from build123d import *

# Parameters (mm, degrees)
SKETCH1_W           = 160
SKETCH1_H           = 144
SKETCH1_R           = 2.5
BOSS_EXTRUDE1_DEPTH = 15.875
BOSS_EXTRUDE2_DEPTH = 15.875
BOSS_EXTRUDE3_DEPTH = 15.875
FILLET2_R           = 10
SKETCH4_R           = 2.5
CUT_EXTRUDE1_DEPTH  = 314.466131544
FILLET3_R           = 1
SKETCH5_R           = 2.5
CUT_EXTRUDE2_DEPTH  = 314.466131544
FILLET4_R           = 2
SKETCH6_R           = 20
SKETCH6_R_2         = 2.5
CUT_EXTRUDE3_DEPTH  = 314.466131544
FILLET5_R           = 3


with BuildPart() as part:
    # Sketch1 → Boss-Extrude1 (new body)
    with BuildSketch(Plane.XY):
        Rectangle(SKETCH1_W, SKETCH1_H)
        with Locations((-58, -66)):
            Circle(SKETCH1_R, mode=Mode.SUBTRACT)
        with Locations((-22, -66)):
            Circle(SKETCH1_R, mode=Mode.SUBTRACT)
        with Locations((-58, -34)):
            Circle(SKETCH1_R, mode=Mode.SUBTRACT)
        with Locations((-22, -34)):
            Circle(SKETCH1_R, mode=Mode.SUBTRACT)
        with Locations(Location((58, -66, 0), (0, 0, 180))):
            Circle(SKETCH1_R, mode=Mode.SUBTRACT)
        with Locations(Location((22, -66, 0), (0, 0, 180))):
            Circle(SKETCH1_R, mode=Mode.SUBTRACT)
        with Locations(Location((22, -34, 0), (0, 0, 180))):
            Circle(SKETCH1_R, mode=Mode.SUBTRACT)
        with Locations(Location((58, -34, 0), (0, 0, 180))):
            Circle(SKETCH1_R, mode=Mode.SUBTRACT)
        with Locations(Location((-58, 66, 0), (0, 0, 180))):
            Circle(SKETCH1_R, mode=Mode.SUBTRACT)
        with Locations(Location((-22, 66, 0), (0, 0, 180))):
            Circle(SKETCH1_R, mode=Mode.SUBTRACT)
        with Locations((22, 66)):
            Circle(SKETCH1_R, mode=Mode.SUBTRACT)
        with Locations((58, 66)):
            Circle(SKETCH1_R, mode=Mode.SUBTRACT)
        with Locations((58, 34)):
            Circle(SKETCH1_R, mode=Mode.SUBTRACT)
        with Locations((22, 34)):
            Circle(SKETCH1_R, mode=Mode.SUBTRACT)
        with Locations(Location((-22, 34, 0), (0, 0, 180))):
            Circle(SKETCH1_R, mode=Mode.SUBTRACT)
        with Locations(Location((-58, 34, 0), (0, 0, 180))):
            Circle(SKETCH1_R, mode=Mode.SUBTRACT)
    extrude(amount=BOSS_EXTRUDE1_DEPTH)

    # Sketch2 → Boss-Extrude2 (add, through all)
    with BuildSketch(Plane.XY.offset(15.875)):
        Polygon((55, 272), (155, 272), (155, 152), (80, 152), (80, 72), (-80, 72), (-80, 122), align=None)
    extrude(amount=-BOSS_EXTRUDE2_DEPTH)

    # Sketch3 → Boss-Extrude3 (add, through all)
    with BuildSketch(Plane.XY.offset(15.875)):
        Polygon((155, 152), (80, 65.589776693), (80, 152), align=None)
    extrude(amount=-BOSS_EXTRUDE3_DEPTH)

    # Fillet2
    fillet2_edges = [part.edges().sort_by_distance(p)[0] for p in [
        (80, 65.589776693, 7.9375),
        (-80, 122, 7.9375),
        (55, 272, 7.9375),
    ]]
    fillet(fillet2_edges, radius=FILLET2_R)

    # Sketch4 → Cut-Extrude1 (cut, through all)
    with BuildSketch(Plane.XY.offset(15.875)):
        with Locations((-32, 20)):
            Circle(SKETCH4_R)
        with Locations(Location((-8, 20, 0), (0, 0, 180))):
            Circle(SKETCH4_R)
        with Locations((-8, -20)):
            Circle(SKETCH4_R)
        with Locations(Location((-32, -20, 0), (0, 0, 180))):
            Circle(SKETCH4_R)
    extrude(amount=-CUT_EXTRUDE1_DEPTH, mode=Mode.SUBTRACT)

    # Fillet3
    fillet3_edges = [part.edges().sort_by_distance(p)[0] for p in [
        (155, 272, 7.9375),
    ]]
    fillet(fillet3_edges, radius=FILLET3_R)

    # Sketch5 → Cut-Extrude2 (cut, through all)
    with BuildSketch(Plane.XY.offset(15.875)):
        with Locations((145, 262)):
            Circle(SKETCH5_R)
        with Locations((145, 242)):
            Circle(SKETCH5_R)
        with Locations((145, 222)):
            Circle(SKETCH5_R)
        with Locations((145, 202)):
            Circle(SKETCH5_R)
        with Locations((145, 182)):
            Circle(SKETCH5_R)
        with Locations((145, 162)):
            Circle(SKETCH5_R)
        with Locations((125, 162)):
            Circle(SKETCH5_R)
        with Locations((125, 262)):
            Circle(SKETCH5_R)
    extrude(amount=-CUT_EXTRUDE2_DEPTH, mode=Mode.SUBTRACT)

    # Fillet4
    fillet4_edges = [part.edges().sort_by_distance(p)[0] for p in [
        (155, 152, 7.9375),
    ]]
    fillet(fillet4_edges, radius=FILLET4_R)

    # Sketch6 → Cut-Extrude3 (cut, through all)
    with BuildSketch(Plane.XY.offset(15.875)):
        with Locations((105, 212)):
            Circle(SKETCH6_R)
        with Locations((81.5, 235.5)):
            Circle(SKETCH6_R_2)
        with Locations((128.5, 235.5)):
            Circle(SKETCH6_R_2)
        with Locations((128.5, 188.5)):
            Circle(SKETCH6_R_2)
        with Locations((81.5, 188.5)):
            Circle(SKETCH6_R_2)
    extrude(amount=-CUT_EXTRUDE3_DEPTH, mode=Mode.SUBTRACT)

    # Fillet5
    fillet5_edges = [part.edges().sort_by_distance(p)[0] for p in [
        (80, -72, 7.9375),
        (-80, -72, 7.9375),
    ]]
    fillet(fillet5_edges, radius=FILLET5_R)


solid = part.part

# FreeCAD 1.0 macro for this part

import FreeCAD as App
import Part
import Sketcher
from FreeCAD import Vector
Q = App.Units.Quantity


def edges_at(feature, points):
    """Names of the edges that pass closest to the given points."""
    edges = feature.Shape.Edges
    near = lambda p: min(range(len(edges)), key=lambda i: edges[i].distToShape(Part.Vertex(*p))[0])
    return sorted({f"Edge{near(p) + 1}" for p in points})


def add_polygon(sketch, points):
    """Adds a closed chain of lines whose ends are joined by coincident constraints."""
    first, n = sketch.GeometryCount, len(points)
    for a, b in zip(points, points[1:] + points[:1]):
        sketch.addGeometry(Part.LineSegment(App.Vector(*a, 0), App.Vector(*b, 0)), False)
    for i in range(n):
        sketch.addConstraint(Sketcher.Constraint("Coincident", first + i, 2, first + (i + 1) % n, 1))

doc = App.newDocument("Part")
params = doc.addObject("Spreadsheet::Sheet", "Params")
for row, (alias, value) in enumerate([
    ("sketch1_diameter", "5 mm"),
    ("sketch1_width", "160 mm"),
    ("sketch1_height", "144 mm"),
    ("pad1_length", "15.875 mm"),
    ("sketch2_width", "100 mm"),
    ("sketch2_width2", "160 mm"),
    ("sketch2_width3", "75 mm"),
    ("sketch2_height", "50 mm"),
    ("sketch2_height2", "80 mm"),
    ("pad2_length", "15.875 mm"),
    ("sketch3_width", "75 mm"),
    ("pad3_length", "15.875 mm"),
    ("fillet_radius", "10 mm"),
    ("sketch4_diameter", "5 mm"),
    ("fillet2_radius", "1 mm"),
    ("sketch5_diameter", "5 mm"),
    ("fillet3_radius", "2 mm"),
    ("sketch6_diameter", "40 mm"),
    ("sketch6_diameter2", "5 mm"),
    ("fillet4_radius", "3 mm"),
], start=1):
    params.set(f"A{row}", alias)
    params.set(f"B{row}", "=" + value)
    params.setAlias(f"B{row}", alias)

body = doc.addObject("PartDesign::Body", "Body")

# Sketch on XY plane
sketch1 = doc.addObject("Sketcher::SketchObject", "Sketch")
body.addObject(sketch1)
sketch1.AttachmentSupport = (doc.XY_Plane, [""])
sketch1.MapMode = "FlatFace"
add_polygon(sketch1, [(-80, 72), (-80, -72), (80, -72), (80, 72)])  # lines 0-3
sketch1.addGeometry(Part.Circle(Vector(-58, -66, 0), Vector(0, 0, 1), 2.5), False)  # 4
sketch1.addGeometry(Part.Circle(Vector(-22, -66, 0), Vector(0, 0, 1), 2.5), False)  # 5
sketch1.addGeometry(Part.Circle(Vector(-58, -34, 0), Vector(0, 0, 1), 2.5), False)  # 6
sketch1.addGeometry(Part.Circle(Vector(-22, -34, 0), Vector(0, 0, 1), 2.5), False)  # 7
sketch1.addGeometry(Part.Circle(Vector(22, -66, 0), Vector(0, 0, 1), 2.5), False)  # 8
sketch1.addGeometry(Part.Circle(Vector(58, -66, 0), Vector(0, 0, 1), 2.5), False)  # 9
sketch1.addGeometry(Part.Circle(Vector(22, -34, 0), Vector(0, 0, 1), 2.5), False)  # 10
sketch1.addGeometry(Part.Circle(Vector(58, -34, 0), Vector(0, 0, 1), 2.5), False)  # 11
sketch1.addGeometry(Part.Circle(Vector(-58, 34, 0), Vector(0, 0, 1), 2.5), False)  # 12
sketch1.addGeometry(Part.Circle(Vector(-22, 34, 0), Vector(0, 0, 1), 2.5), False)  # 13
sketch1.addGeometry(Part.Circle(Vector(-58, 66, 0), Vector(0, 0, 1), 2.5), False)  # 14
sketch1.addGeometry(Part.Circle(Vector(-22, 66, 0), Vector(0, 0, 1), 2.5), False)  # 15
sketch1.addGeometry(Part.Circle(Vector(22, 34, 0), Vector(0, 0, 1), 2.5), False)  # 16
sketch1.addGeometry(Part.Circle(Vector(58, 34, 0), Vector(0, 0, 1), 2.5), False)  # 17
sketch1.addGeometry(Part.Circle(Vector(22, 66, 0), Vector(0, 0, 1), 2.5), False)  # 18
sketch1.addGeometry(Part.Circle(Vector(58, 66, 0), Vector(0, 0, 1), 2.5), False)  # 19
sketch1.addConstraint([
    Sketcher.Constraint("Vertical", 0),
    Sketcher.Constraint("Horizontal", 1),
    Sketcher.Constraint("Vertical", 2),
    Sketcher.Constraint("Horizontal", 3),
    Sketcher.Constraint("Equal", 4, 5),
    Sketcher.Constraint("Equal", 5, 6),
    Sketcher.Constraint("Equal", 6, 7),
    Sketcher.Constraint("Equal", 7, 8),
    Sketcher.Constraint("Equal", 8, 9),
    Sketcher.Constraint("Equal", 9, 10),
    Sketcher.Constraint("Equal", 10, 11),
    Sketcher.Constraint("Equal", 11, 12),
    Sketcher.Constraint("Equal", 12, 13),
    Sketcher.Constraint("Equal", 13, 14),
    Sketcher.Constraint("Equal", 14, 15),
    Sketcher.Constraint("Equal", 15, 16),
    Sketcher.Constraint("Equal", 16, 17),
    Sketcher.Constraint("Equal", 17, 18),
    Sketcher.Constraint("Equal", 18, 19),
    Sketcher.Constraint("Symmetric", 11, 3, 12, 3, -1, 1),
    Sketcher.Constraint("Symmetric", 10, 3, 13, 3, -1, 1),
    Sketcher.Constraint("Symmetric", 9, 3, 14, 3, -1, 1),
    Sketcher.Constraint("Symmetric", 8, 3, 15, 3, -1, 1),
    Sketcher.Constraint("Symmetric", 7, 3, 16, 3, -1, 1),
    Sketcher.Constraint("Symmetric", 6, 3, 17, 3, -1, 1),
    Sketcher.Constraint("Symmetric", 5, 3, 18, 3, -1, 1),
    Sketcher.Constraint("Symmetric", 4, 3, 19, 3, -1, 1),
    Sketcher.Constraint("Symmetric", 0, 2, 2, 2, -1, 1),
    Sketcher.Constraint("Symmetric", 5, 3, 8, 3, -2),
    Sketcher.Constraint("Symmetric", 4, 3, 9, 3, -2),
    Sketcher.Constraint("Symmetric", 7, 3, 10, 3, -2),
    Sketcher.Constraint("Symmetric", 6, 3, 11, 3, -2),
    Sketcher.Constraint("Horizontal", 4, 3, 5, 3),
    Sketcher.Constraint("Horizontal", 6, 3, 7, 3),
    Sketcher.Constraint("Vertical", 4, 3, 6, 3),
    Sketcher.Constraint("Vertical", 5, 3, 7, 3),
    Sketcher.Constraint("Diameter", 4, Q("5 mm")),
    Sketcher.Constraint("DistanceX", 1, 1, 1, 2, Q("160 mm")),
    Sketcher.Constraint("DistanceY", 0, 2, 0, 1, Q("144 mm")),
    Sketcher.Constraint("DistanceX", 4, 3, -1, 1, Q("58 mm")),
    Sketcher.Constraint("DistanceY", 4, 3, -1, 1, Q("66 mm")),
    Sketcher.Constraint("DistanceX", 5, 3, -1, 1, Q("22 mm")),
    Sketcher.Constraint("DistanceY", 6, 3, -1, 1, Q("34 mm")),
])
sketch1.setExpression("Constraints[40]", "Params.sketch1_diameter")
sketch1.setExpression("Constraints[41]", "Params.sketch1_width")
sketch1.setExpression("Constraints[42]", "Params.sketch1_height")
pad1 = doc.addObject("PartDesign::Pad", "Pad")
body.addObject(pad1)
pad1.Profile = sketch1
pad1.setExpression("Length", "Params.pad1_length")

# Sketch on XY plane
sketch2 = doc.addObject("Sketcher::SketchObject", "Sketch001")
body.addObject(sketch2)
sketch2.AttachmentSupport = (doc.XY_Plane, [""])
sketch2.MapMode = "FlatFace"
sketch2.AttachmentOffset = App.Placement(Vector(0, 0, 15.875), App.Rotation())
add_polygon(sketch2, [(155, 272), (55, 272), (-80, 122), (-80, 72), (80, 72), (80, 152), (155, 152)])  # lines 0-6
sketch2.addConstraint([
    Sketcher.Constraint("Horizontal", 0),
    Sketcher.Constraint("Vertical", 2),
    Sketcher.Constraint("Horizontal", 3),
    Sketcher.Constraint("Vertical", 4),
    Sketcher.Constraint("Horizontal", 5),
    Sketcher.Constraint("Vertical", 6),
    Sketcher.Constraint("DistanceX", 0, 2, 0, 1, Q("100 mm")),
    Sketcher.Constraint("DistanceX", 3, 1, 3, 2, Q("160 mm")),
    Sketcher.Constraint("DistanceX", 5, 1, 5, 2, Q("75 mm")),
    Sketcher.Constraint("DistanceY", 2, 2, 2, 1, Q("50 mm")),
    Sketcher.Constraint("DistanceY", 4, 1, 4, 2, Q("80 mm")),
    Sketcher.Constraint("DistanceY", 6, 1, 6, 2, Q("120 mm")),
    Sketcher.Constraint("DistanceX", -1, 1, 0, 2, Q("55 mm")),
    Sketcher.Constraint("DistanceY", -1, 1, 0, 2, Q("272 mm")),
])
sketch2.setExpression("Constraints[13]", "Params.sketch2_width")
sketch2.setExpression("Constraints[14]", "Params.sketch2_width2")
sketch2.setExpression("Constraints[15]", "Params.sketch2_width3")
sketch2.setExpression("Constraints[16]", "Params.sketch2_height")
sketch2.setExpression("Constraints[17]", "Params.sketch2_height2")
pad2 = doc.addObject("PartDesign::Pad", "Pad001")
body.addObject(pad2)
pad2.Profile = sketch2
pad2.setExpression("Length", "Params.pad2_length")
pad2.Reversed = True

# Sketch on XY plane
sketch3 = doc.addObject("Sketcher::SketchObject", "Sketch002")
body.addObject(sketch3)
sketch3.AttachmentSupport = (doc.XY_Plane, [""])
sketch3.MapMode = "FlatFace"
sketch3.AttachmentOffset = App.Placement(Vector(0, 0, 15.875), App.Rotation())
add_polygon(sketch3, [(80, 65.589777), (155, 152), (80, 152)])  # lines 0-2
sketch3.addConstraint([
    Sketcher.Constraint("Horizontal", 1),
    Sketcher.Constraint("Vertical", 2),
    Sketcher.Constraint("DistanceX", 1, 2, 1, 1, Q("75 mm")),
    Sketcher.Constraint("DistanceX", -1, 1, 0, 2, Q("155 mm")),
    Sketcher.Constraint("DistanceY", -1, 1, 0, 2, Q("152 mm")),
    Sketcher.Constraint("DistanceY", 2, 2, 2, 1, Q("86.410223 mm")),
])
sketch3.setExpression("Constraints[5]", "Params.sketch3_width")
pad3 = doc.addObject("PartDesign::Pad", "Pad002")
body.addObject(pad3)
pad3.Profile = sketch3
pad3.setExpression("Length", "Params.pad3_length")
pad3.Reversed = True
doc.recompute()

fillet = doc.addObject("PartDesign::Fillet", "Fillet")
body.addObject(fillet)
fillet.Base = (pad3, edges_at(pad3, [(80, 65.59, 7.938), (-80, 122, 7.938), (55, 272, 7.938)]))
fillet.setExpression("Radius", "Params.fillet_radius")

# Sketch on XY plane
sketch4 = doc.addObject("Sketcher::SketchObject", "Sketch003")
body.addObject(sketch4)
sketch4.AttachmentSupport = (doc.XY_Plane, [""])
sketch4.MapMode = "FlatFace"
sketch4.AttachmentOffset = App.Placement(Vector(0, 0, 15.875), App.Rotation())
sketch4.addGeometry([
    Part.Circle(Vector(-32, 20, 0), Vector(0, 0, 1), 2.5),
    Part.Circle(Vector(-8, 20, 0), Vector(0, 0, 1), 2.5),
    Part.Circle(Vector(-8, -20, 0), Vector(0, 0, 1), 2.5),
    Part.Circle(Vector(-32, -20, 0), Vector(0, 0, 1), 2.5),
], False)
sketch4.addConstraint([
    Sketcher.Constraint("Equal", 0, 1),
    Sketcher.Constraint("Equal", 1, 2),
    Sketcher.Constraint("Equal", 2, 3),
    Sketcher.Constraint("Symmetric", 1, 3, 2, 3, -1),
    Sketcher.Constraint("Symmetric", 0, 3, 3, 3, -1),
    Sketcher.Constraint("Horizontal", 0, 3, 1, 3),
    Sketcher.Constraint("Diameter", 0, Q("5 mm")),
    Sketcher.Constraint("DistanceX", 0, 3, -1, 1, Q("32 mm")),
    Sketcher.Constraint("DistanceY", -1, 1, 0, 3, Q("20 mm")),
    Sketcher.Constraint("DistanceX", 1, 3, -1, 1, Q("8 mm")),
])
sketch4.setExpression("Constraints[6]", "Params.sketch4_diameter")
pocket1 = doc.addObject("PartDesign::Pocket", "Pocket")
body.addObject(pocket1)
pocket1.Profile = sketch4
pocket1.Type = "ThroughAll"
doc.recompute()

fillet2 = doc.addObject("PartDesign::Fillet", "Fillet001")
body.addObject(fillet2)
fillet2.Base = (pocket1, edges_at(pocket1, [(155, 272, 7.938)]))
fillet2.setExpression("Radius", "Params.fillet2_radius")

# Sketch on XY plane
sketch5 = doc.addObject("Sketcher::SketchObject", "Sketch004")
body.addObject(sketch5)
sketch5.AttachmentSupport = (doc.XY_Plane, [""])
sketch5.MapMode = "FlatFace"
sketch5.AttachmentOffset = App.Placement(Vector(0, 0, 15.875), App.Rotation())
sketch5.addGeometry([
    Part.Circle(Vector(145, 262, 0), Vector(0, 0, 1), 2.5),  # 0
    Part.Circle(Vector(145, 242, 0), Vector(0, 0, 1), 2.5),  # 1
    Part.Circle(Vector(145, 222, 0), Vector(0, 0, 1), 2.5),  # 2
    Part.Circle(Vector(145, 202, 0), Vector(0, 0, 1), 2.5),  # 3
    Part.Circle(Vector(145, 182, 0), Vector(0, 0, 1), 2.5),  # 4
    Part.Circle(Vector(145, 162, 0), Vector(0, 0, 1), 2.5),  # 5
    Part.Circle(Vector(125, 162, 0), Vector(0, 0, 1), 2.5),  # 6
    Part.Circle(Vector(125, 262, 0), Vector(0, 0, 1), 2.5),  # 7
], False)
sketch5.addConstraint([
    Sketcher.Constraint("Equal", 0, 1),
    Sketcher.Constraint("Equal", 1, 2),
    Sketcher.Constraint("Equal", 2, 3),
    Sketcher.Constraint("Equal", 3, 4),
    Sketcher.Constraint("Equal", 4, 5),
    Sketcher.Constraint("Equal", 5, 6),
    Sketcher.Constraint("Equal", 6, 7),
    Sketcher.Constraint("Horizontal", 5, 3, 6, 3),
    Sketcher.Constraint("Horizontal", 0, 3, 7, 3),
    Sketcher.Constraint("Vertical", 0, 3, 1, 3),
    Sketcher.Constraint("Vertical", 1, 3, 2, 3),
    Sketcher.Constraint("Vertical", 2, 3, 3, 3),
    Sketcher.Constraint("Vertical", 3, 3, 4, 3),
    Sketcher.Constraint("Vertical", 4, 3, 5, 3),
    Sketcher.Constraint("Vertical", 6, 3, 7, 3),
    Sketcher.Constraint("Diameter", 0, Q("5 mm")),
    Sketcher.Constraint("DistanceX", -1, 1, 0, 3, Q("145 mm")),
    Sketcher.Constraint("DistanceY", -1, 1, 0, 3, Q("262 mm")),
    Sketcher.Constraint("DistanceY", -1, 1, 1, 3, Q("242 mm")),
    Sketcher.Constraint("DistanceY", -1, 1, 2, 3, Q("222 mm")),
    Sketcher.Constraint("DistanceY", -1, 1, 3, 3, Q("202 mm")),
    Sketcher.Constraint("DistanceY", -1, 1, 4, 3, Q("182 mm")),
    Sketcher.Constraint("DistanceY", -1, 1, 5, 3, Q("162 mm")),
    Sketcher.Constraint("DistanceX", -1, 1, 6, 3, Q("125 mm")),
])
sketch5.setExpression("Constraints[15]", "Params.sketch5_diameter")
pocket2 = doc.addObject("PartDesign::Pocket", "Pocket001")
body.addObject(pocket2)
pocket2.Profile = sketch5
pocket2.Type = "ThroughAll"
doc.recompute()

fillet3 = doc.addObject("PartDesign::Fillet", "Fillet002")
body.addObject(fillet3)
fillet3.Base = (pocket2, edges_at(pocket2, [(155, 152, 7.938)]))
fillet3.setExpression("Radius", "Params.fillet3_radius")

# Sketch on XY plane
sketch6 = doc.addObject("Sketcher::SketchObject", "Sketch005")
body.addObject(sketch6)
sketch6.AttachmentSupport = (doc.XY_Plane, [""])
sketch6.MapMode = "FlatFace"
sketch6.AttachmentOffset = App.Placement(Vector(0, 0, 15.875), App.Rotation())
sketch6.addGeometry([
    Part.Circle(Vector(105, 212, 0), Vector(0, 0, 1), 20),  # 0
    Part.Circle(Vector(81.5, 235.5, 0), Vector(0, 0, 1), 2.5),  # 1
    Part.Circle(Vector(128.5, 235.5, 0), Vector(0, 0, 1), 2.5),  # 2
    Part.Circle(Vector(128.5, 188.5, 0), Vector(0, 0, 1), 2.5),  # 3
    Part.Circle(Vector(81.5, 188.5, 0), Vector(0, 0, 1), 2.5),  # 4
], False)
sketch6.addConstraint([
    Sketcher.Constraint("Equal", 1, 2),
    Sketcher.Constraint("Equal", 2, 3),
    Sketcher.Constraint("Equal", 3, 4),
    Sketcher.Constraint("Horizontal", 1, 3, 2, 3),
    Sketcher.Constraint("Horizontal", 3, 3, 4, 3),
    Sketcher.Constraint("Vertical", 2, 3, 3, 3),
    Sketcher.Constraint("Vertical", 1, 3, 4, 3),
    Sketcher.Constraint("Diameter", 0, Q("40 mm")),
    Sketcher.Constraint("Diameter", 1, Q("5 mm")),
    Sketcher.Constraint("DistanceX", -1, 1, 0, 3, Q("105 mm")),
    Sketcher.Constraint("DistanceY", -1, 1, 0, 3, Q("212 mm")),
    Sketcher.Constraint("DistanceX", 1, 3, 2, 3, Q("47 mm")),
    Sketcher.Constraint("DistanceY", 3, 3, 2, 3, Q("47 mm")),
    Sketcher.Constraint("DistanceX", -1, 1, 1, 3, Q("81.5 mm")),
    Sketcher.Constraint("DistanceY", -1, 1, 1, 3, Q("235.5 mm")),
])
sketch6.setExpression("Constraints[7]", "Params.sketch6_diameter")
sketch6.setExpression("Constraints[8]", "Params.sketch6_diameter2")
pocket3 = doc.addObject("PartDesign::Pocket", "Pocket002")
body.addObject(pocket3)
pocket3.Profile = sketch6
pocket3.Type = "ThroughAll"
doc.recompute()

fillet4 = doc.addObject("PartDesign::Fillet", "Fillet003")
body.addObject(fillet4)
fillet4.Base = (pocket3, edges_at(pocket3, [(80, -72, 7.938), (-80, -72, 7.938)]))
fillet4.setExpression("Radius", "Params.fillet4_radius")

doc.recompute()
